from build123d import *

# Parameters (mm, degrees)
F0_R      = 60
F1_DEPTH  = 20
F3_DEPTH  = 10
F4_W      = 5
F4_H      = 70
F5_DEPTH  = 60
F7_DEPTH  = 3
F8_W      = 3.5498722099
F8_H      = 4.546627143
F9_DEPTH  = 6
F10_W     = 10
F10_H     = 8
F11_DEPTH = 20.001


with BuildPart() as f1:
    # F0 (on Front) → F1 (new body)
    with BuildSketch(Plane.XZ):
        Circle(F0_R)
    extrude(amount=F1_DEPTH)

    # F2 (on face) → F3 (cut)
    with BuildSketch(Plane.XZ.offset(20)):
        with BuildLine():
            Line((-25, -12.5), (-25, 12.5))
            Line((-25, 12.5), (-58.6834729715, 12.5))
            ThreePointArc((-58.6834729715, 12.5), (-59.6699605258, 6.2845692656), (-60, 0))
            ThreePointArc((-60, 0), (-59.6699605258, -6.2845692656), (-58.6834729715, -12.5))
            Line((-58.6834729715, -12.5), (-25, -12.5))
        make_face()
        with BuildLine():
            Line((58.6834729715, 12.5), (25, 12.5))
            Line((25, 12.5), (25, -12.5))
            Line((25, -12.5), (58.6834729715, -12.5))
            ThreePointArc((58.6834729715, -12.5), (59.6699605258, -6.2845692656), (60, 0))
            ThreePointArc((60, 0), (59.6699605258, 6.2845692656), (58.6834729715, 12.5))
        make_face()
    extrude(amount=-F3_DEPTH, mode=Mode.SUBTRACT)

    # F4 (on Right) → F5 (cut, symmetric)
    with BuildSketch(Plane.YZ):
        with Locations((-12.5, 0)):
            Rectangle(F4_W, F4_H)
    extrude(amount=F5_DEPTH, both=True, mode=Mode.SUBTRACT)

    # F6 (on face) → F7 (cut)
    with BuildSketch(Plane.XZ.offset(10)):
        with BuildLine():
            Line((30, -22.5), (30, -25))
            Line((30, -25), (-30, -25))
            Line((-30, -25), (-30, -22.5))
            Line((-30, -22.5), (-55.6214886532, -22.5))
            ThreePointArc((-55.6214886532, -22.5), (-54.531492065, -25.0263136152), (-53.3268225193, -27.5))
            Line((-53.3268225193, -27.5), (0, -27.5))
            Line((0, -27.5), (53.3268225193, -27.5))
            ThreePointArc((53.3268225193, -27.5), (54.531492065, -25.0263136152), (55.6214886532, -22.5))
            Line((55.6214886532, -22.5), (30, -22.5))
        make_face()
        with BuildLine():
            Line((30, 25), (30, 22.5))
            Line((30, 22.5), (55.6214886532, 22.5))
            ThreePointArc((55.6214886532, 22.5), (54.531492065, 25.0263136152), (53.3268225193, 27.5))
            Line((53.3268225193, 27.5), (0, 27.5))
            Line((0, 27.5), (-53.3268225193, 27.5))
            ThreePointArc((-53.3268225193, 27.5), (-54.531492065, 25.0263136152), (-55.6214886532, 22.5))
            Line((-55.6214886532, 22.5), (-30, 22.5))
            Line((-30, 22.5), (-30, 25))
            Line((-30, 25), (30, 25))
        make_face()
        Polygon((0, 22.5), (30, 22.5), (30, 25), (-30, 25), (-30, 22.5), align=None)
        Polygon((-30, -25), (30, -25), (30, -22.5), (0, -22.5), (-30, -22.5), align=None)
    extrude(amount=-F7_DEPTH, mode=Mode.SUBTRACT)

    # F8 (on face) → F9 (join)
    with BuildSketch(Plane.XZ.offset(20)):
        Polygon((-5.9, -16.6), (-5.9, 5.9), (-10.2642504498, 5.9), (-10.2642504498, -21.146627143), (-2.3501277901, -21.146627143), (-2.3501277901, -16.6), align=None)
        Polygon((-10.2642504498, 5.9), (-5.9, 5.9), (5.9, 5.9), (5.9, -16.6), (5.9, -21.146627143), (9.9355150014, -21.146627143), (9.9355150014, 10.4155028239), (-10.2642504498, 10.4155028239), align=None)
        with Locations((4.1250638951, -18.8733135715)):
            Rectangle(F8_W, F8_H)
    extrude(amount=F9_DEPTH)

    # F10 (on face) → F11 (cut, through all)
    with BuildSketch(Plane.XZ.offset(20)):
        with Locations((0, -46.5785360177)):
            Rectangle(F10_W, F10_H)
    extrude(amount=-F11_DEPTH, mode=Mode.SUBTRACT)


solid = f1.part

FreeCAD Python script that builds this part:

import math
import FreeCAD as App
import Part
import Sketcher

V = App.Vector


def add_polygon(sketch, points):
    """Adds a closed chain of lines whose ends are joined by coincident constraints."""
    first, n = sketch.GeometryCount, len(points)
    for a, b in zip(points, points[1:] + points[:1]):
        sketch.addGeometry(Part.LineSegment(App.Vector(*a, 0), App.Vector(*b, 0)), False)
    for i in range(n):
        sketch.addConstraint(Sketcher.Constraint("Coincident", first + i, 2, first + (i + 1) % n, 1))

doc = App.newDocument("Part")
body = doc.addObject("PartDesign::Body", "Body")

# Sketch on XZ plane
sketch1 = body.newObject("Sketcher::SketchObject", "Sketch")
sketch1.AttachmentSupport = (doc.getObject("XZ_Plane"), [""])
sketch1.MapMode = "FlatFace"
sketch1.addGeometry(Part.Circle(V(0, 0, 0), V(0, 0, 1), 60), False)
sketch1.addConstraint(Sketcher.Constraint("Coincident", 0, 3, -1, 1))
sketch1.addConstraint(Sketcher.Constraint("Diameter", 0, 120.0))
pad1 = body.newObject("PartDesign::Pad", "Pad")
pad1.Profile = sketch1
pad1.Length = 20

# Sketch on XZ plane
sketch2 = body.newObject("Sketcher::SketchObject", "Sketch001")
sketch2.AttachmentSupport = (doc.getObject("XZ_Plane"), [""])
sketch2.MapMode = "FlatFace"
sketch2.AttachmentOffset = App.Placement(V(0, 0, 20), App.Rotation())
sketch2.addGeometry(Part.LineSegment(V(-25, -12, 0), V(-25, 12, 0)), False)
sketch2.addGeometry(Part.LineSegment(V(-25, 12, 0), V(-59, 12, 0)), False)
sketch2.addGeometry(Part.ArcOfCircle(Part.Circle(V(0, 0, 0), V(0, 0, 1), 60), math.radians(167.98), math.radians(180)), False)
sketch2.addGeometry(Part.ArcOfCircle(Part.Circle(V(0, 0, 0), V(0, 0, 1), 60), math.radians(180), math.radians(192.02)), False)
sketch2.addGeometry(Part.LineSegment(V(-59, -12, 0), V(-25, -12, 0)), False)
sketch2.addGeometry(Part.LineSegment(V(59, 12, 0), V(25, 12, 0)), False)
sketch2.addGeometry(Part.LineSegment(V(25, 12, 0), V(25, -12, 0)), False)
sketch2.addGeometry(Part.LineSegment(V(25, -12, 0), V(59, -12, 0)), False)
sketch2.addGeometry(Part.ArcOfCircle(Part.Circle(V(0, 0, 0), V(0, 0, 1), 60), math.radians(-12.02), math.radians(0)), False)
sketch2.addGeometry(Part.ArcOfCircle(Part.Circle(V(0, 0, 0), V(0, 0, 1), 60), math.radians(0), math.radians(12.02)), False)
sketch2.addConstraint(Sketcher.Constraint("Coincident", 0, 2, 1, 1))
sketch2.addConstraint(Sketcher.Constraint("Coincident", 1, 2, 2, 1))
sketch2.addConstraint(Sketcher.Constraint("Tangent", 2, 2, 3, 1))
sketch2.addConstraint(Sketcher.Constraint("Coincident", 3, 2, 4, 1))
sketch2.addConstraint(Sketcher.Constraint("Coincident", 4, 2, 0, 1))
sketch2.addConstraint(Sketcher.Constraint("Coincident", 5, 2, 6, 1))
sketch2.addConstraint(Sketcher.Constraint("Coincident", 6, 2, 7, 1))
sketch2.addConstraint(Sketcher.Constraint("Coincident", 7, 2, 8, 1))
sketch2.addConstraint(Sketcher.Constraint("Tangent", 8, 2, 9, 1))
sketch2.addConstraint(Sketcher.Constraint("Coincident", 9, 2, 5, 1))
sketch2.addConstraint(Sketcher.Constraint("Vertical", 0))
sketch2.addConstraint(Sketcher.Constraint("Horizontal", 1))
sketch2.addConstraint(Sketcher.Constraint("Horizontal", 4))
sketch2.addConstraint(Sketcher.Constraint("Horizontal", 5))
sketch2.addConstraint(Sketcher.Constraint("Vertical", 6))
sketch2.addConstraint(Sketcher.Constraint("Horizontal", 7))
sketch2.addConstraint(Sketcher.Constraint("Coincident", 2, 3, -1, 1))
sketch2.addConstraint(Sketcher.Constraint("Coincident", 8, 3, -1, 1))
sketch2.addConstraint(Sketcher.Constraint("Equal", 2, 3))
sketch2.addConstraint(Sketcher.Constraint("Equal", 3, 8))
sketch2.addConstraint(Sketcher.Constraint("Equal", 8, 9))
sketch2.addConstraint(Sketcher.Constraint("Symmetric", 4, 2, 5, 2, -1, 1))
sketch2.addConstraint(Sketcher.Constraint("PointOnObject", 2, 2, -1))
sketch2.addConstraint(Sketcher.Constraint("PointOnObject", 8, 2, -1))
sketch2.addConstraint(Sketcher.Constraint("Horizontal", 1, 2, 5, 2))
sketch2.addConstraint(Sketcher.Constraint("Horizontal", 4, 2, 6, 2))
sketch2.addConstraint(Sketcher.Constraint("Radius", 2, 60.0))
sketch2.addConstraint(Sketcher.Constraint("DistanceY", 0, 1, 0, 2, 25.0))
sketch2.addConstraint(Sketcher.Constraint("DistanceX", 0, 2, -1, 1, 25.0))
pocket1 = body.newObject("PartDesign::Pocket", "Pocket")
pocket1.Profile = sketch2
pocket1.Length = 10

# Sketch on YZ plane
sketch3 = body.newObject("Sketcher::SketchObject", "Sketch002")
sketch3.AttachmentSupport = (doc.getObject("YZ_Plane"), [""])
sketch3.MapMode = "FlatFace"
add_polygon(sketch3, [(-15, 35), (-15, -35), (-10, -35), (-10, 35)])  # lines 0-3
sketch3.addConstraint(Sketcher.Constraint("Vertical", 0))
sketch3.addConstraint(Sketcher.Constraint("Horizontal", 1))
sketch3.addConstraint(Sketcher.Constraint("Vertical", 2))
sketch3.addConstraint(Sketcher.Constraint("Horizontal", 3))
sketch3.addConstraint(Sketcher.Constraint("DistanceX", 1, 1, 1, 2, 5.0))
sketch3.addConstraint(Sketcher.Constraint("DistanceY", 0, 2, 0, 1, 70.0))
sketch3.addConstraint(Sketcher.Constraint("DistanceX", 0, 2, -1, 1, 15.0))
sketch3.addConstraint(Sketcher.Constraint("DistanceY", 0, 2, -1, 1, 35.0))
pocket2 = body.newObject("PartDesign::Pocket", "Pocket001")
pocket2.Profile = sketch3
pocket2.Length = 120
pocket2.Midplane = True

# Sketch on XZ plane
sketch4 = body.newObject("Sketcher::SketchObject", "Sketch003")
sketch4.AttachmentSupport = (doc.getObject("XZ_Plane"), [""])
sketch4.MapMode = "FlatFace"
sketch4.AttachmentOffset = App.Placement(V(0, 0, 10), App.Rotation())
sketch4.addGeometry(Part.ArcOfCircle(Part.Circle(V(0, 0, 0), V(0, 0, 1), 60), math.radians(-157.98), math.radians(-152.72)), False)
sketch4.addGeometry(Part.LineSegment(V(-53, -28, 0), V(53, -28, 0)), False)
sketch4.addGeometry(Part.ArcOfCircle(Part.Circle(V(0, 0, 0), V(0, 0, 1), 60), math.radians(-27.28), math.radians(-22.02)), False)
sketch4.addGeometry(Part.LineSegment(V(56, -22, 0), V(-56, -22, 0)), False)
sketch4.addGeometry(Part.ArcOfCircle(Part.Circle(V(0, 0, 0), V(0, 0, 1), 60), math.radians(22.02), math.radians(27.28)), False)
sketch4.addGeometry(Part.LineSegment(V(53, 28, 0), V(-53, 28, 0)), False)
sketch4.addGeometry(Part.ArcOfCircle(Part.Circle(V(0, 0, 0), V(0, 0, 1), 60), math.radians(152.72), math.radians(157.98)), False)
sketch4.addGeometry(Part.LineSegment(V(-56, 22, 0), V(56, 22, 0)), False)
sketch4.addConstraint(Sketcher.Constraint("Coincident", 0, 2, 1, 1))
sketch4.addConstraint(Sketcher.Constraint("Coincident", 1, 2, 2, 1))
sketch4.addConstraint(Sketcher.Constraint("Coincident", 2, 2, 3, 1))
sketch4.addConstraint(Sketcher.Constraint("Coincident", 3, 2, 0, 1))
sketch4.addConstraint(Sketcher.Constraint("Coincident", 4, 2, 5, 1))
sketch4.addConstraint(Sketcher.Constraint("Coincident", 5, 2, 6, 1))
sketch4.addConstraint(Sketcher.Constraint("Coincident", 6, 2, 7, 1))
sketch4.addConstraint(Sketcher.Constraint("Coincident", 7, 2, 4, 1))
sketch4.addConstraint(Sketcher.Constraint("Horizontal", 1))
sketch4.addConstraint(Sketcher.Constraint("Horizontal", 3))
sketch4.addConstraint(Sketcher.Constraint("Horizontal", 5))
sketch4.addConstraint(Sketcher.Constraint("Horizontal", 7))
sketch4.addConstraint(Sketcher.Constraint("Coincident", 0, 3, -1, 1))
sketch4.addConstraint(Sketcher.Constraint("Coincident", 2, 3, -1, 1))
sketch4.addConstraint(Sketcher.Constraint("Coincident", 4, 3, -1, 1))
sketch4.addConstraint(Sketcher.Constraint("Coincident", 6, 3, -1, 1))
sketch4.addConstraint(Sketcher.Constraint("Equal", 0, 2))
sketch4.addConstraint(Sketcher.Constraint("Equal", 2, 4))
sketch4.addConstraint(Sketcher.Constraint("Equal", 4, 6))
sketch4.addConstraint(Sketcher.Constraint("Vertical", 1, 2, 4, 2))
sketch4.addConstraint(Sketcher.Constraint("Vertical", 3, 2, 6, 2))
sketch4.addConstraint(Sketcher.Constraint("Radius", 0, 60.0))
sketch4.addConstraint(Sketcher.Constraint("DistanceY", 1, 2, 2, 2, 5.0))
sketch4.addConstraint(Sketcher.Constraint("DistanceY", 2, 2, 4, 2, 50.0))
pocket3 = body.newObject("PartDesign::Pocket", "Pocket002")
pocket3.Profile = sketch4
pocket3.Length = 3

# Sketch on XZ plane
sketch5 = body.newObject("Sketcher::SketchObject", "Sketch004")
sketch5.AttachmentSupport = (doc.getObject("XZ_Plane"), [""])
sketch5.MapMode = "FlatFace"
sketch5.AttachmentOffset = App.Placement(V(0, 0, 20), App.Rotation())
add_polygon(sketch5, [(-5.9, -16.6), (-5.9, 5.9), (5.9, 5.9), (5.9, -16.6), (2.4, -16.6), (2.4, -21.1), (9.9, -21.1), (9.9, 10.4), (-10.3, 10.4), (-10.3, -21.1), (-2.4, -21.1), (-2.4, -16.6)])  # lines 0-11
sketch5.addConstraint(Sketcher.Constraint("Vertical", 0))
sketch5.addConstraint(Sketcher.Constraint("Horizontal", 1))
sketch5.addConstraint(Sketcher.Constraint("Vertical", 2))
sketch5.addConstraint(Sketcher.Constraint("Horizontal", 3))
sketch5.addConstraint(Sketcher.Constraint("Vertical", 4))
sketch5.addConstraint(Sketcher.Constraint("Horizontal", 5))
sketch5.addConstraint(Sketcher.Constraint("Vertical", 6))
sketch5.addConstraint(Sketcher.Constraint("Horizontal", 7))
sketch5.addConstraint(Sketcher.Constraint("Vertical", 8))
sketch5.addConstraint(Sketcher.Constraint("Horizontal", 9))
sketch5.addConstraint(Sketcher.Constraint("Vertical", 10))
sketch5.addConstraint(Sketcher.Constraint("Horizontal", 11))
sketch5.addConstraint(Sketcher.Constraint("Symmetric", 4, 2, 9, 2, -2))
sketch5.addConstraint(Sketcher.Constraint("Symmetric", 2, 2, 11, 2, -2))
sketch5.addConstraint(Sketcher.Constraint("DistanceX", 1, 1, 1, 2, 11.8))
sketch5.addConstraint(Sketcher.Constraint("DistanceY", 0, 1, 0, 2, 22.5))
sketch5.addConstraint(Sketcher.Constraint("DistanceY", -1, 1, 0, 2, 5.9))
sketch5.addConstraint(Sketcher.Constraint("DistanceY", 6, 1, 6, 2, 31.56213))
sketch5.addConstraint(Sketcher.Constraint("DistanceX", 3, 2, 3, 1, 3.549872))
sketch5.addConstraint(Sketcher.Constraint("DistanceX", 5, 1, 5, 2, 7.585387))
sketch5.addConstraint(Sketcher.Constraint("DistanceX", 7, 2, 7, 1, 20.199765))
sketch5.addConstraint(Sketcher.Constraint("DistanceY", 4, 2, 4, 1, 4.546627))
pad2 = body.newObject("PartDesign::Pad", "Pad001")
pad2.Profile = sketch5
pad2.Length = 6

# Sketch on XZ plane
sketch6 = body.newObject("Sketcher::SketchObject", "Sketch005")
sketch6.AttachmentSupport = (doc.getObject("XZ_Plane"), [""])
sketch6.MapMode = "FlatFace"
sketch6.AttachmentOffset = App.Placement(V(0, 0, 20), App.Rotation())
add_polygon(sketch6, [(-5, -43), (-5, -51), (5, -51), (5, -43)])  # lines 0-3
sketch6.addConstraint(Sketcher.Constraint("Vertical", 0))
sketch6.addConstraint(Sketcher.Constraint("Horizontal", 1))
sketch6.addConstraint(Sketcher.Constraint("Vertical", 2))
sketch6.addConstraint(Sketcher.Constraint("Horizontal", 3))
sketch6.addConstraint(Sketcher.Constraint("DistanceX", 1, 1, 1, 2, 10.0))
sketch6.addConstraint(Sketcher.Constraint("DistanceY", 0, 2, 0, 1, 8.0))
sketch6.addConstraint(Sketcher.Constraint("DistanceX", 0, 2, -1, 1, 5.0))
sketch6.addConstraint(Sketcher.Constraint("DistanceY", 0, 2, -1, 1, 50.578536))
pocket4 = body.newObject("PartDesign::Pocket", "Pocket003")
pocket4.Profile = sketch6
pocket4.Type = "ThroughAll"

doc.recompute()
